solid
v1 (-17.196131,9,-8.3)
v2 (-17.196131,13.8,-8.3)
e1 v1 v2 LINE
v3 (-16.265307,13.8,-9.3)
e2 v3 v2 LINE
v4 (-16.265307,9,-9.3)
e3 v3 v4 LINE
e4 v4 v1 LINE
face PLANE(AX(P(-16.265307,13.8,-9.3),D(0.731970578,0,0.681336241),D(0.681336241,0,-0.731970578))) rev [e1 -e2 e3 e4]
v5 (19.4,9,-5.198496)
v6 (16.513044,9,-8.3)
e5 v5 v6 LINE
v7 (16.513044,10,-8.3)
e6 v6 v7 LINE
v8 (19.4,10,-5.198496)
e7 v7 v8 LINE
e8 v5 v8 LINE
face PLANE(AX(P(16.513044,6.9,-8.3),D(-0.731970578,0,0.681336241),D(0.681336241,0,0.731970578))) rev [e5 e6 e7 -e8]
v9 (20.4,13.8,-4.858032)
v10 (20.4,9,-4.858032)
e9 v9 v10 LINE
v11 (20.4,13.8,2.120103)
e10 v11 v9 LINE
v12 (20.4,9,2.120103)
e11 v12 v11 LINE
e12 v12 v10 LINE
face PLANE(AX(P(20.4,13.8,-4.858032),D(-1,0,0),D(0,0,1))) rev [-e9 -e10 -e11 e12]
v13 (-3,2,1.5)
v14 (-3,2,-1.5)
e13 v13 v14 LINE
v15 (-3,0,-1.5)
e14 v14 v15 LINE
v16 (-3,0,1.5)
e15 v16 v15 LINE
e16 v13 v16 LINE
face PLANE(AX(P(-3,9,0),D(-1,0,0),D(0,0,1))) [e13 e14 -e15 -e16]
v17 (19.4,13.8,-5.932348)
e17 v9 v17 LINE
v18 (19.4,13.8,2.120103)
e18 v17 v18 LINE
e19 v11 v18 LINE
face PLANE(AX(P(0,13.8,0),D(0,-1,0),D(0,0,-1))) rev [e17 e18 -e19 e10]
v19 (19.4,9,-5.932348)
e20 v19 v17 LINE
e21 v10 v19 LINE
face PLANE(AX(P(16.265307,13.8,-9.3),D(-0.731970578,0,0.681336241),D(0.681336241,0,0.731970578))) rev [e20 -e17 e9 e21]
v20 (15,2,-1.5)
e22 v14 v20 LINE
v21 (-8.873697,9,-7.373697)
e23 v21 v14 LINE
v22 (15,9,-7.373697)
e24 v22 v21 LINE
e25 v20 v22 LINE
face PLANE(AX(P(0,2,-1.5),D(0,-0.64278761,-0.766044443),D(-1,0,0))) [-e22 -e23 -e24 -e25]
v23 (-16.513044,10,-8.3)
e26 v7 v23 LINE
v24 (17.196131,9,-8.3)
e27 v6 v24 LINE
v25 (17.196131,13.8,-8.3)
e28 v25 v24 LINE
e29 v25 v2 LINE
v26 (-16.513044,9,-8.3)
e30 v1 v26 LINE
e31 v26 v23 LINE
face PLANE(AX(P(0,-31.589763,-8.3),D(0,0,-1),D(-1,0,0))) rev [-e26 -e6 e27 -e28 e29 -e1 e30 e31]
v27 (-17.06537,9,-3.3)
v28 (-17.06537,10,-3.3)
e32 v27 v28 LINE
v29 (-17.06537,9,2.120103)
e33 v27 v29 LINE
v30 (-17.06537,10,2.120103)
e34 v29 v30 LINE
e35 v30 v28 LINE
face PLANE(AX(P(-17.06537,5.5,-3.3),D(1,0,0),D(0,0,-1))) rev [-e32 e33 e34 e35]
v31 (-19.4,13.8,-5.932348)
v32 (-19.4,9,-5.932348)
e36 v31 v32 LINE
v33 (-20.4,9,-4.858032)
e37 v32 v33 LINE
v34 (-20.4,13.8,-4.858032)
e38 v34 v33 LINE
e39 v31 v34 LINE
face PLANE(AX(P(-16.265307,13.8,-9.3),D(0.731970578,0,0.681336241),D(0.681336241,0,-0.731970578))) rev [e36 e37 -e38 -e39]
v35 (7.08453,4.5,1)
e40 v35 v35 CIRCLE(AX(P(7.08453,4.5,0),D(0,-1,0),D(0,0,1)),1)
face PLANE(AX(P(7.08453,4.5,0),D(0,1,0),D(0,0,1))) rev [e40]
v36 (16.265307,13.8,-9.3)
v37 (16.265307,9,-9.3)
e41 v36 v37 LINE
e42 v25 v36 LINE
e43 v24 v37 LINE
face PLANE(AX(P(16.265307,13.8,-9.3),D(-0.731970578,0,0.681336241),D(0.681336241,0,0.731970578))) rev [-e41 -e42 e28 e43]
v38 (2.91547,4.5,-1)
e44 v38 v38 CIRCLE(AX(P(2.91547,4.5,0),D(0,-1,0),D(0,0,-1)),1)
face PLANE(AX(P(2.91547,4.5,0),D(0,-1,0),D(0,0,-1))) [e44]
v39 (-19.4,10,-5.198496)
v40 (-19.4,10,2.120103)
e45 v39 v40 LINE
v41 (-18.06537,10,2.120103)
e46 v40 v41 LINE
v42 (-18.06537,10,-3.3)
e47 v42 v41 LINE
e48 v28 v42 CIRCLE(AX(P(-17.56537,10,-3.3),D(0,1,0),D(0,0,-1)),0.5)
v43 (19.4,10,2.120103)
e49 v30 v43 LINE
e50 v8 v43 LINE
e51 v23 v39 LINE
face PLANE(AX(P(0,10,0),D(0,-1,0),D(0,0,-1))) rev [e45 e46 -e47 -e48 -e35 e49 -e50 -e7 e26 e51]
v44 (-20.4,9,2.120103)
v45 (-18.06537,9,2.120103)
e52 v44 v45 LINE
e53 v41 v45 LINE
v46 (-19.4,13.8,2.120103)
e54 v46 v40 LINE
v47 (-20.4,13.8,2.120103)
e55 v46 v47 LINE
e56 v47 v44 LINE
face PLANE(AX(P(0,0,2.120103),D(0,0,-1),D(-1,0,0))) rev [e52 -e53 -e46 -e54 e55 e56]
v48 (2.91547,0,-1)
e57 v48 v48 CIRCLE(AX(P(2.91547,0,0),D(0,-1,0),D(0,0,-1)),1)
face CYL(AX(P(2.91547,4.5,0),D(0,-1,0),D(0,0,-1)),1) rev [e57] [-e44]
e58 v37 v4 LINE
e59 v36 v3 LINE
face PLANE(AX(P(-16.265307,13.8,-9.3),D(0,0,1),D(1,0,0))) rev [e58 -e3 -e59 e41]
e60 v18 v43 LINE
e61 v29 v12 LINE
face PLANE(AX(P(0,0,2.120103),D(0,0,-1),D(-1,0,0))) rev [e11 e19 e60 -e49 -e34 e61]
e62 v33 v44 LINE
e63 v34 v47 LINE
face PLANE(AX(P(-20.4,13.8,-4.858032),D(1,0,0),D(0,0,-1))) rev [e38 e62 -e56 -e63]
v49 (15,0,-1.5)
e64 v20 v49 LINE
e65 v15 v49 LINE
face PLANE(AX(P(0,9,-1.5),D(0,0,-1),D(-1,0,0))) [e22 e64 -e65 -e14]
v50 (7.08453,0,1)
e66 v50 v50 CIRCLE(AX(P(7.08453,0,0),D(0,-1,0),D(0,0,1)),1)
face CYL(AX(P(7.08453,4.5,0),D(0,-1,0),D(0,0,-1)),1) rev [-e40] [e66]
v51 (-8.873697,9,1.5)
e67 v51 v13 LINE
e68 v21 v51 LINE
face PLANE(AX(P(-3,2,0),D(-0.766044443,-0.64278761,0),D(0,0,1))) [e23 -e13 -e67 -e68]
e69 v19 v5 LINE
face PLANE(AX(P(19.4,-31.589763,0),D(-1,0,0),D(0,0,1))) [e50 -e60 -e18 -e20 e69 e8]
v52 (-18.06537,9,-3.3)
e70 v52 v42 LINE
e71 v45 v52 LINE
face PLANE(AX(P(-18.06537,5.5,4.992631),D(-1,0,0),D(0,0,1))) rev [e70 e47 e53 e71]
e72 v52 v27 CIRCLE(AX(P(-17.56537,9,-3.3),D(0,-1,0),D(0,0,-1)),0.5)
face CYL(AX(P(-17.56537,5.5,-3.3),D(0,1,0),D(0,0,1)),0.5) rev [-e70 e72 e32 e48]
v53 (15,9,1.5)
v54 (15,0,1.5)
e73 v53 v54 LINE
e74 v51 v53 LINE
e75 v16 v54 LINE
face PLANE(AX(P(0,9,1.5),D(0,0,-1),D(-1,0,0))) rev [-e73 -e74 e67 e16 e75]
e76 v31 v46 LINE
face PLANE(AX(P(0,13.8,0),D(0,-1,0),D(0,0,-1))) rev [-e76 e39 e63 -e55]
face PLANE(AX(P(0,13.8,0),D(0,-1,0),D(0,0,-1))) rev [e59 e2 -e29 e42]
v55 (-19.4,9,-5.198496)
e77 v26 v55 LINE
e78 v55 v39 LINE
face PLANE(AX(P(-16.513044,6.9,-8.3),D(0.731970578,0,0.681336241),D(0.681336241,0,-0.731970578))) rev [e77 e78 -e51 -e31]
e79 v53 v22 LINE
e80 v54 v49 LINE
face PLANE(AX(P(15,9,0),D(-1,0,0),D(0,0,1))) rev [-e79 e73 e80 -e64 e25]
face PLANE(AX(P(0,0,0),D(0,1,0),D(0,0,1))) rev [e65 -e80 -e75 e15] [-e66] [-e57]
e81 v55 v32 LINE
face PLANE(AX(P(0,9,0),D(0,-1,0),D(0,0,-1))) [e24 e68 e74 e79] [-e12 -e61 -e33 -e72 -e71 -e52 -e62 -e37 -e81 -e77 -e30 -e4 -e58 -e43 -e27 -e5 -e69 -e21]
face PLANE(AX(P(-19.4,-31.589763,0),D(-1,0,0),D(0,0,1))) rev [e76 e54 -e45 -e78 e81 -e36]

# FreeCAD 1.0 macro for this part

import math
import FreeCAD as App
import Part
import Sketcher
from FreeCAD import Vector
Q = App.Units.Quantity


def edges_at(feature, points):
    """Names of the edges that pass closest to the given points."""
    edges = feature.Shape.Edges
    near = lambda p: min(range(len(edges)), key=lambda i: edges[i].distToShape(Part.Vertex(*p))[0])
    return sorted({f"Edge{near(p) + 1}" for p in points})

doc = App.newDocument("Part")
body = doc.addObject("PartDesign::Body", "Body")

sketch1 = doc.addObject("Sketcher::SketchObject", "Sketch")
body.addObject(sketch1)
sketch1.AttachmentSupport = (doc.XZ_Plane, [""])
sketch1.MapMode = "FlatFace"
sketch1.addGeometry([
    Part.LineSegment(Vector(-3, -1.5, 0), Vector(-3, 1.5, 0)),
    Part.LineSegment(Vector(-3, 1.5, 0), Vector(15, 1.5, 0)),
    Part.LineSegment(Vector(15, 1.5, 0), Vector(15, -1.5, 0)),
    Part.LineSegment(Vector(15, -1.5, 0), Vector(-3, -1.5, 0)),
], False)
sketch1.addConstraint([
    Sketcher.Constraint("Coincident", 0, 2, 1, 1),
    Sketcher.Constraint("Coincident", 1, 2, 2, 1),
    Sketcher.Constraint("Coincident", 2, 2, 3, 1),
    Sketcher.Constraint("Coincident", 3, 2, 0, 1),
    Sketcher.Constraint("Vertical", 0),
    Sketcher.Constraint("Horizontal", 1),
    Sketcher.Constraint("Vertical", 2),
    Sketcher.Constraint("Horizontal", 3),
    Sketcher.Constraint("DistanceX", 1, 1, 1, 2, Q("18 mm")),
    Sketcher.Constraint("DistanceY", 0, 1, 0, 2, Q("3 mm")),
    Sketcher.Constraint("DistanceX", 0, 2, -1, 1, Q("3 mm")),
    Sketcher.Constraint("DistanceY", -1, 1, 0, 2, Q("1.5 mm")),
])
pad1 = doc.addObject("PartDesign::Pad", "Pad")
body.addObject(pad1)
pad1.Profile = sketch1
pad1.Length = 9
pad1.Reversed = True

sketch2 = doc.addObject("Sketcher::SketchObject", "Sketch001")
body.addObject(sketch2)
sketch2.AttachmentSupport = (doc.XZ_Plane, [""])
sketch2.MapMode = "FlatFace"
sketch2.AttachmentOffset = App.Placement(Vector(0, 0, -9), App.Rotation())
sketch2.addGeometry([
    Part.LineSegment(Vector(16.265307, -9.3, 0), Vector(-16.265307, -9.3, 0)),
    Part.LineSegment(Vector(-16.265307, -9.3, 0), Vector(-20.4, -4.858032, 0)),
    Part.LineSegment(Vector(-20.4, -4.858032, 0), Vector(-20.4, 4.620103, 0)),
    Part.LineSegment(Vector(-20.4, 4.620103, 0), Vector(20.4, 4.620103, 0)),
    Part.LineSegment(Vector(20.4, 4.620103, 0), Vector(20.4, -4.858032, 0)),
    Part.LineSegment(Vector(20.4, -4.858032, 0), Vector(16.265307, -9.3, 0)),
], False)
sketch2.addConstraint([
    Sketcher.Constraint("Coincident", 0, 2, 1, 1),
    Sketcher.Constraint("Coincident", 1, 2, 2, 1),
    Sketcher.Constraint("Coincident", 2, 2, 3, 1),
    Sketcher.Constraint("Coincident", 3, 2, 4, 1),
    Sketcher.Constraint("Coincident", 4, 2, 5, 1),
    Sketcher.Constraint("Coincident", 5, 2, 0, 1),
    Sketcher.Constraint("Horizontal", 0),
    Sketcher.Constraint("Vertical", 2),
    Sketcher.Constraint("Horizontal", 3),
    Sketcher.Constraint("Vertical", 4),
    Sketcher.Constraint("Symmetric", 1, 2, 4, 2, -2),
    Sketcher.Constraint("Equal", 1, 5),
    Sketcher.Constraint("DistanceX", 3, 1, 3, 2, Q("40.8 mm")),
    Sketcher.Constraint("DistanceY", 0, 2, -1, 1, Q("9.3 mm")),
    Sketcher.Constraint("DistanceX", 0, 2, 0, 1, Q("32.530614 mm")),
    Sketcher.Constraint("DistanceY", 2, 1, 2, 2, Q("9.478135 mm")),
    Sketcher.Constraint("DistanceY", 1, 2, -1, 1, Q("4.858032 mm")),
])
pad2 = doc.addObject("PartDesign::Pad", "Pad001")
body.addObject(pad2)
pad2.Profile = sketch2
pad2.Length = 4.8
pad2.Reversed = True

sketch3 = doc.addObject("Sketcher::SketchObject", "Sketch002")
body.addObject(sketch3)
sketch3.AttachmentSupport = (doc.XZ_Plane, [""])
sketch3.MapMode = "FlatFace"
sketch3.AttachmentOffset = App.Placement(Vector(0, 0, -13.8), App.Rotation())
sketch3.addGeometry([
    Part.LineSegment(Vector(16.513044, -8.3, 0), Vector(-16.513044, -8.3, 0)),
    Part.LineSegment(Vector(-16.513044, -8.3, 0), Vector(-19.4, -5.198496, 0)),
    Part.LineSegment(Vector(-19.4, -5.198496, 0), Vector(-19.4, 3.620103, 0)),
    Part.LineSegment(Vector(-19.4, 3.620103, 0), Vector(19.4, 3.620103, 0)),
    Part.LineSegment(Vector(19.4, 3.620103, 0), Vector(19.4, -5.198496, 0)),
    Part.LineSegment(Vector(19.4, -5.198496, 0), Vector(16.513044, -8.3, 0)),
], False)
sketch3.addConstraint([
    Sketcher.Constraint("Coincident", 0, 2, 1, 1),
    Sketcher.Constraint("Coincident", 1, 2, 2, 1),
    Sketcher.Constraint("Coincident", 2, 2, 3, 1),
    Sketcher.Constraint("Coincident", 3, 2, 4, 1),
    Sketcher.Constraint("Coincident", 4, 2, 5, 1),
    Sketcher.Constraint("Coincident", 5, 2, 0, 1),
    Sketcher.Constraint("Horizontal", 0),
    Sketcher.Constraint("Vertical", 2),
    Sketcher.Constraint("Horizontal", 3),
    Sketcher.Constraint("Vertical", 4),
    Sketcher.Constraint("Symmetric", 1, 2, 4, 2, -2),
    Sketcher.Constraint("Equal", 1, 5),
    Sketcher.Constraint("DistanceX", 3, 1, 3, 2, Q("38.8 mm")),
    Sketcher.Constraint("DistanceY", 0, 2, -1, 1, Q("8.3 mm")),
    Sketcher.Constraint("DistanceY", 2, 1, 2, 2, Q("8.818599 mm")),
    Sketcher.Constraint("DistanceX", 0, 2, 0, 1, Q("33.026088 mm")),
    Sketcher.Constraint("Distance", 1, Q("4.237197 mm")),
])
pocket1 = doc.addObject("PartDesign::Pocket", "Pocket")
body.addObject(pocket1)
pocket1.Profile = sketch3
pocket1.Length = 3.8
pocket1.Reversed = True

sketch4 = doc.addObject("Sketcher::SketchObject", "Sketch003")
body.addObject(sketch4)
sketch4.AttachmentSupport = (doc.XZ_Plane, [""])
sketch4.MapMode = "FlatFace"
sketch4.AttachmentOffset = App.Placement(Vector(0, 0, -13.8), App.Rotation())
sketch4.addGeometry([
    Part.LineSegment(Vector(20.4, 3.620103, 0), Vector(-20.4, 3.620103, 0)),
    Part.LineSegment(Vector(-20.4, 3.620103, 0), Vector(-20.4, 4.620103, 0)),
    Part.LineSegment(Vector(-20.4, 4.620103, 0), Vector(20.4, 4.620103, 0)),
    Part.LineSegment(Vector(20.4, 4.620103, 0), Vector(20.4, 3.620103, 0)),
], False)
sketch4.addConstraint([
    Sketcher.Constraint("Coincident", 0, 2, 1, 1),
    Sketcher.Constraint("Coincident", 1, 2, 2, 1),
    Sketcher.Constraint("Coincident", 2, 2, 3, 1),
    Sketcher.Constraint("Coincident", 3, 2, 0, 1),
    Sketcher.Constraint("Horizontal", 0),
    Sketcher.Constraint("Vertical", 1),
    Sketcher.Constraint("Horizontal", 2),
    Sketcher.Constraint("Vertical", 3),
    Sketcher.Constraint("DistanceY", 1, 1, 1, 2, Q("1 mm")),
    Sketcher.Constraint("DistanceX", 0, 2, 0, 1, Q("40.8 mm")),
    Sketcher.Constraint("DistanceX", 0, 2, -1, 1, Q("20.4 mm")),
    Sketcher.Constraint("DistanceY", -1, 1, 0, 2, Q("3.620103 mm")),
])
pocket2 = doc.addObject("PartDesign::Pocket", "Pocket001")
body.addObject(pocket2)
pocket2.Profile = sketch4
pocket2.Length = 6
pocket2.Reversed = True

sketch5 = doc.addObject("Sketcher::SketchObject", "Sketch004")
body.addObject(sketch5)
sketch5.AttachmentSupport = (doc.XZ_Plane, [""])
sketch5.MapMode = "FlatFace"
sketch5.AttachmentOffset = App.Placement(Vector(0, 0, -13.8), App.Rotation())
sketch5.addGeometry([
    Part.LineSegment(Vector(-19.4, -8.3, 0), Vector(-19.4, -5.198496, 0)),
    Part.LineSegment(Vector(-19.4, -5.198496, 0), Vector(-16.513044, -8.3, 0)),
    Part.LineSegment(Vector(-16.513044, -8.3, 0), Vector(-19.4, -8.3, 0)),
    Part.LineSegment(Vector(16.513044, -8.3, 0), Vector(19.4, -5.198496, 0)),
    Part.LineSegment(Vector(19.4, -5.198496, 0), Vector(19.4, -8.3, 0)),
    Part.LineSegment(Vector(19.4, -8.3, 0), Vector(16.513044, -8.3, 0)),
], False)
sketch5.addConstraint([
    Sketcher.Constraint("Coincident", 0, 2, 1, 1),
    Sketcher.Constraint("Coincident", 1, 2, 2, 1),
    Sketcher.Constraint("Coincident", 2, 2, 0, 1),
    Sketcher.Constraint("Coincident", 3, 2, 4, 1),
    Sketcher.Constraint("Coincident", 4, 2, 5, 1),
    Sketcher.Constraint("Coincident", 5, 2, 3, 1),
    Sketcher.Constraint("Vertical", 0),
    Sketcher.Constraint("Horizontal", 2),
    Sketcher.Constraint("Vertical", 4),
    Sketcher.Constraint("Horizontal", 5),
    Sketcher.Constraint("Symmetric", 0, 2, 3, 2, -2),
    Sketcher.Constraint("Symmetric", 1, 2, 5, 2, -2),
    Sketcher.Constraint("DistanceX", 0, 2, -1, 1, Q("19.4 mm")),
    Sketcher.Constraint("DistanceY", 1, 2, -1, 1, Q("8.3 mm")),
    Sketcher.Constraint("DistanceX", 2, 2, 2, 1, Q("2.886956 mm")),
    Sketcher.Constraint("DistanceY", 0, 1, 0, 2, Q("3.101504 mm")),
])
pocket3 = doc.addObject("PartDesign::Pocket", "Pocket002")
body.addObject(pocket3)
pocket3.Profile = sketch5
pocket3.Length = 6.9
pocket3.Reversed = True

sketch6 = doc.addObject("Sketcher::SketchObject", "Sketch005")
body.addObject(sketch6)
sketch6.AttachmentSupport = (doc.XZ_Plane, [""])
sketch6.MapMode = "FlatFace"
sketch6.AttachmentOffset = App.Placement(Vector(0, 0, -10), App.Rotation())
sketch6.addGeometry([
    Part.LineSegment(Vector(-17.06537, 4.992631, 0), Vector(-17.06537, -3.3, 0)),
    Part.ArcOfCircle(Part.Circle(Vector(-17.56537, -3.3, 0), Vector(0, 0, 1), 0.5), math.radians(180), math.radians(360)),
    Part.LineSegment(Vector(-18.06537, -3.3, 0), Vector(-18.06537, 4.992631, 0)),
    Part.ArcOfCircle(Part.Circle(Vector(-17.56537, 4.992631, 0), Vector(0, 0, 1), 0.5), math.radians(0), math.radians(180)),
], False)
sketch6.addConstraint([
    Sketcher.Constraint("Tangent", 0, 2, 1, 2),
    Sketcher.Constraint("Tangent", 1, 1, 2, 1),
    Sketcher.Constraint("Tangent", 2, 2, 3, 2),
    Sketcher.Constraint("Tangent", 3, 1, 0, 1),
    Sketcher.Constraint("Vertical", 0),
    Sketcher.Constraint("Vertical", 2),
    Sketcher.Constraint("Radius", 1, Q("0.5 mm")),
    Sketcher.Constraint("DistanceY", 1, 3, -1, 1, Q("3.3 mm")),
    Sketcher.Constraint("DistanceY", 0, 2, 0, 1, Q("8.292631 mm")),
    Sketcher.Constraint("DistanceX", 1, 3, -1, 1, Q("17.56537 mm")),
])
pocket4 = doc.addObject("PartDesign::Pocket", "Pocket003")
body.addObject(pocket4)
pocket4.Profile = sketch6
pocket4.Length = 4.5
pocket4.Reversed = True

sketch7 = doc.addObject("Sketcher::SketchObject", "Sketch006")
body.addObject(sketch7)
sketch7.AttachmentSupport = (doc.XZ_Plane, [""])
sketch7.MapMode = "FlatFace"
sketch7.addGeometry([
    Part.Circle(Vector(2.91547, 0, 0), Vector(0, 0, 1), 1),
    Part.Circle(Vector(7.08453, 0, 0), Vector(0, 0, 1), 1),
], False)
sketch7.addConstraint([
    Sketcher.Constraint("Equal", 0, 1),
    Sketcher.Constraint("PointOnObject", 0, 3, -1),
    Sketcher.Constraint("PointOnObject", 1, 3, -1),
    Sketcher.Constraint("Diameter", 0, Q("2 mm")),
    Sketcher.Constraint("DistanceX", -1, 1, 0, 3, Q("2.91547 mm")),
    Sketcher.Constraint("DistanceX", -1, 1, 1, 3, Q("7.08453 mm")),
])
pocket5 = doc.addObject("PartDesign::Pocket", "Pocket004")
body.addObject(pocket5)
pocket5.Profile = sketch7
pocket5.Length = 4.5

sketch8 = doc.addObject("Sketcher::SketchObject", "Sketch007")
body.addObject(sketch8)
sketch8.AttachmentSupport = (doc.XY_Plane, [""])
sketch8.MapMode = "FlatFace"
sketch8.AttachmentOffset = App.Placement(Vector(0, 0, 3.620103), App.Rotation())
sketch8.addGeometry([
    Part.LineSegment(Vector(-20.4, 13.8, 0), Vector(-20.4, 9, 0)),
    Part.LineSegment(Vector(-20.4, 9, 0), Vector(20.4, 9, 0)),
    Part.LineSegment(Vector(20.4, 9, 0), Vector(20.4, 13.8, 0)),
    Part.LineSegment(Vector(20.4, 13.8, 0), Vector(-20.4, 13.8, 0)),
], False)
sketch8.addConstraint([
    Sketcher.Constraint("Coincident", 0, 2, 1, 1),
    Sketcher.Constraint("Coincident", 1, 2, 2, 1),
    Sketcher.Constraint("Coincident", 2, 2, 3, 1),
    Sketcher.Constraint("Coincident", 3, 2, 0, 1),
    Sketcher.Constraint("Vertical", 0),
    Sketcher.Constraint("Horizontal", 1),
    Sketcher.Constraint("Vertical", 2),
    Sketcher.Constraint("Horizontal", 3),
    Sketcher.Constraint("DistanceX", 1, 1, 1, 2, Q("40.8 mm")),
    Sketcher.Constraint("DistanceY", 0, 2, 0, 1, Q("4.8 mm")),
    Sketcher.Constraint("DistanceY", -1, 1, 0, 2, Q("9 mm")),
    Sketcher.Constraint("DistanceX", 0, 2, -1, 1, Q("20.4 mm")),
])
pocket6 = doc.addObject("PartDesign::Pocket", "Pocket005")
body.addObject(pocket6)
pocket6.Profile = sketch8
pocket6.Length = 1.5
doc.recompute()

chamfer = doc.addObject("PartDesign::Chamfer", "Chamfer")
body.addObject(chamfer)
chamfer.Base = (pocket6, edges_at(pocket6, [(6, 9, -1.5)]))
chamfer.ChamferType = "Two distances"
chamfer.Size = 7
chamfer.Size2 = 5.873697
doc.recompute()

chamfer2 = doc.addObject("PartDesign::Chamfer", "Chamfer001")
body.addObject(chamfer2)
chamfer2.Base = (chamfer, edges_at(chamfer, [(-3, 9, -2.937)]))
chamfer2.ChamferType = "Two distances"
chamfer2.Size = 7
chamfer2.Size2 = 5.873697

doc.recompute()
